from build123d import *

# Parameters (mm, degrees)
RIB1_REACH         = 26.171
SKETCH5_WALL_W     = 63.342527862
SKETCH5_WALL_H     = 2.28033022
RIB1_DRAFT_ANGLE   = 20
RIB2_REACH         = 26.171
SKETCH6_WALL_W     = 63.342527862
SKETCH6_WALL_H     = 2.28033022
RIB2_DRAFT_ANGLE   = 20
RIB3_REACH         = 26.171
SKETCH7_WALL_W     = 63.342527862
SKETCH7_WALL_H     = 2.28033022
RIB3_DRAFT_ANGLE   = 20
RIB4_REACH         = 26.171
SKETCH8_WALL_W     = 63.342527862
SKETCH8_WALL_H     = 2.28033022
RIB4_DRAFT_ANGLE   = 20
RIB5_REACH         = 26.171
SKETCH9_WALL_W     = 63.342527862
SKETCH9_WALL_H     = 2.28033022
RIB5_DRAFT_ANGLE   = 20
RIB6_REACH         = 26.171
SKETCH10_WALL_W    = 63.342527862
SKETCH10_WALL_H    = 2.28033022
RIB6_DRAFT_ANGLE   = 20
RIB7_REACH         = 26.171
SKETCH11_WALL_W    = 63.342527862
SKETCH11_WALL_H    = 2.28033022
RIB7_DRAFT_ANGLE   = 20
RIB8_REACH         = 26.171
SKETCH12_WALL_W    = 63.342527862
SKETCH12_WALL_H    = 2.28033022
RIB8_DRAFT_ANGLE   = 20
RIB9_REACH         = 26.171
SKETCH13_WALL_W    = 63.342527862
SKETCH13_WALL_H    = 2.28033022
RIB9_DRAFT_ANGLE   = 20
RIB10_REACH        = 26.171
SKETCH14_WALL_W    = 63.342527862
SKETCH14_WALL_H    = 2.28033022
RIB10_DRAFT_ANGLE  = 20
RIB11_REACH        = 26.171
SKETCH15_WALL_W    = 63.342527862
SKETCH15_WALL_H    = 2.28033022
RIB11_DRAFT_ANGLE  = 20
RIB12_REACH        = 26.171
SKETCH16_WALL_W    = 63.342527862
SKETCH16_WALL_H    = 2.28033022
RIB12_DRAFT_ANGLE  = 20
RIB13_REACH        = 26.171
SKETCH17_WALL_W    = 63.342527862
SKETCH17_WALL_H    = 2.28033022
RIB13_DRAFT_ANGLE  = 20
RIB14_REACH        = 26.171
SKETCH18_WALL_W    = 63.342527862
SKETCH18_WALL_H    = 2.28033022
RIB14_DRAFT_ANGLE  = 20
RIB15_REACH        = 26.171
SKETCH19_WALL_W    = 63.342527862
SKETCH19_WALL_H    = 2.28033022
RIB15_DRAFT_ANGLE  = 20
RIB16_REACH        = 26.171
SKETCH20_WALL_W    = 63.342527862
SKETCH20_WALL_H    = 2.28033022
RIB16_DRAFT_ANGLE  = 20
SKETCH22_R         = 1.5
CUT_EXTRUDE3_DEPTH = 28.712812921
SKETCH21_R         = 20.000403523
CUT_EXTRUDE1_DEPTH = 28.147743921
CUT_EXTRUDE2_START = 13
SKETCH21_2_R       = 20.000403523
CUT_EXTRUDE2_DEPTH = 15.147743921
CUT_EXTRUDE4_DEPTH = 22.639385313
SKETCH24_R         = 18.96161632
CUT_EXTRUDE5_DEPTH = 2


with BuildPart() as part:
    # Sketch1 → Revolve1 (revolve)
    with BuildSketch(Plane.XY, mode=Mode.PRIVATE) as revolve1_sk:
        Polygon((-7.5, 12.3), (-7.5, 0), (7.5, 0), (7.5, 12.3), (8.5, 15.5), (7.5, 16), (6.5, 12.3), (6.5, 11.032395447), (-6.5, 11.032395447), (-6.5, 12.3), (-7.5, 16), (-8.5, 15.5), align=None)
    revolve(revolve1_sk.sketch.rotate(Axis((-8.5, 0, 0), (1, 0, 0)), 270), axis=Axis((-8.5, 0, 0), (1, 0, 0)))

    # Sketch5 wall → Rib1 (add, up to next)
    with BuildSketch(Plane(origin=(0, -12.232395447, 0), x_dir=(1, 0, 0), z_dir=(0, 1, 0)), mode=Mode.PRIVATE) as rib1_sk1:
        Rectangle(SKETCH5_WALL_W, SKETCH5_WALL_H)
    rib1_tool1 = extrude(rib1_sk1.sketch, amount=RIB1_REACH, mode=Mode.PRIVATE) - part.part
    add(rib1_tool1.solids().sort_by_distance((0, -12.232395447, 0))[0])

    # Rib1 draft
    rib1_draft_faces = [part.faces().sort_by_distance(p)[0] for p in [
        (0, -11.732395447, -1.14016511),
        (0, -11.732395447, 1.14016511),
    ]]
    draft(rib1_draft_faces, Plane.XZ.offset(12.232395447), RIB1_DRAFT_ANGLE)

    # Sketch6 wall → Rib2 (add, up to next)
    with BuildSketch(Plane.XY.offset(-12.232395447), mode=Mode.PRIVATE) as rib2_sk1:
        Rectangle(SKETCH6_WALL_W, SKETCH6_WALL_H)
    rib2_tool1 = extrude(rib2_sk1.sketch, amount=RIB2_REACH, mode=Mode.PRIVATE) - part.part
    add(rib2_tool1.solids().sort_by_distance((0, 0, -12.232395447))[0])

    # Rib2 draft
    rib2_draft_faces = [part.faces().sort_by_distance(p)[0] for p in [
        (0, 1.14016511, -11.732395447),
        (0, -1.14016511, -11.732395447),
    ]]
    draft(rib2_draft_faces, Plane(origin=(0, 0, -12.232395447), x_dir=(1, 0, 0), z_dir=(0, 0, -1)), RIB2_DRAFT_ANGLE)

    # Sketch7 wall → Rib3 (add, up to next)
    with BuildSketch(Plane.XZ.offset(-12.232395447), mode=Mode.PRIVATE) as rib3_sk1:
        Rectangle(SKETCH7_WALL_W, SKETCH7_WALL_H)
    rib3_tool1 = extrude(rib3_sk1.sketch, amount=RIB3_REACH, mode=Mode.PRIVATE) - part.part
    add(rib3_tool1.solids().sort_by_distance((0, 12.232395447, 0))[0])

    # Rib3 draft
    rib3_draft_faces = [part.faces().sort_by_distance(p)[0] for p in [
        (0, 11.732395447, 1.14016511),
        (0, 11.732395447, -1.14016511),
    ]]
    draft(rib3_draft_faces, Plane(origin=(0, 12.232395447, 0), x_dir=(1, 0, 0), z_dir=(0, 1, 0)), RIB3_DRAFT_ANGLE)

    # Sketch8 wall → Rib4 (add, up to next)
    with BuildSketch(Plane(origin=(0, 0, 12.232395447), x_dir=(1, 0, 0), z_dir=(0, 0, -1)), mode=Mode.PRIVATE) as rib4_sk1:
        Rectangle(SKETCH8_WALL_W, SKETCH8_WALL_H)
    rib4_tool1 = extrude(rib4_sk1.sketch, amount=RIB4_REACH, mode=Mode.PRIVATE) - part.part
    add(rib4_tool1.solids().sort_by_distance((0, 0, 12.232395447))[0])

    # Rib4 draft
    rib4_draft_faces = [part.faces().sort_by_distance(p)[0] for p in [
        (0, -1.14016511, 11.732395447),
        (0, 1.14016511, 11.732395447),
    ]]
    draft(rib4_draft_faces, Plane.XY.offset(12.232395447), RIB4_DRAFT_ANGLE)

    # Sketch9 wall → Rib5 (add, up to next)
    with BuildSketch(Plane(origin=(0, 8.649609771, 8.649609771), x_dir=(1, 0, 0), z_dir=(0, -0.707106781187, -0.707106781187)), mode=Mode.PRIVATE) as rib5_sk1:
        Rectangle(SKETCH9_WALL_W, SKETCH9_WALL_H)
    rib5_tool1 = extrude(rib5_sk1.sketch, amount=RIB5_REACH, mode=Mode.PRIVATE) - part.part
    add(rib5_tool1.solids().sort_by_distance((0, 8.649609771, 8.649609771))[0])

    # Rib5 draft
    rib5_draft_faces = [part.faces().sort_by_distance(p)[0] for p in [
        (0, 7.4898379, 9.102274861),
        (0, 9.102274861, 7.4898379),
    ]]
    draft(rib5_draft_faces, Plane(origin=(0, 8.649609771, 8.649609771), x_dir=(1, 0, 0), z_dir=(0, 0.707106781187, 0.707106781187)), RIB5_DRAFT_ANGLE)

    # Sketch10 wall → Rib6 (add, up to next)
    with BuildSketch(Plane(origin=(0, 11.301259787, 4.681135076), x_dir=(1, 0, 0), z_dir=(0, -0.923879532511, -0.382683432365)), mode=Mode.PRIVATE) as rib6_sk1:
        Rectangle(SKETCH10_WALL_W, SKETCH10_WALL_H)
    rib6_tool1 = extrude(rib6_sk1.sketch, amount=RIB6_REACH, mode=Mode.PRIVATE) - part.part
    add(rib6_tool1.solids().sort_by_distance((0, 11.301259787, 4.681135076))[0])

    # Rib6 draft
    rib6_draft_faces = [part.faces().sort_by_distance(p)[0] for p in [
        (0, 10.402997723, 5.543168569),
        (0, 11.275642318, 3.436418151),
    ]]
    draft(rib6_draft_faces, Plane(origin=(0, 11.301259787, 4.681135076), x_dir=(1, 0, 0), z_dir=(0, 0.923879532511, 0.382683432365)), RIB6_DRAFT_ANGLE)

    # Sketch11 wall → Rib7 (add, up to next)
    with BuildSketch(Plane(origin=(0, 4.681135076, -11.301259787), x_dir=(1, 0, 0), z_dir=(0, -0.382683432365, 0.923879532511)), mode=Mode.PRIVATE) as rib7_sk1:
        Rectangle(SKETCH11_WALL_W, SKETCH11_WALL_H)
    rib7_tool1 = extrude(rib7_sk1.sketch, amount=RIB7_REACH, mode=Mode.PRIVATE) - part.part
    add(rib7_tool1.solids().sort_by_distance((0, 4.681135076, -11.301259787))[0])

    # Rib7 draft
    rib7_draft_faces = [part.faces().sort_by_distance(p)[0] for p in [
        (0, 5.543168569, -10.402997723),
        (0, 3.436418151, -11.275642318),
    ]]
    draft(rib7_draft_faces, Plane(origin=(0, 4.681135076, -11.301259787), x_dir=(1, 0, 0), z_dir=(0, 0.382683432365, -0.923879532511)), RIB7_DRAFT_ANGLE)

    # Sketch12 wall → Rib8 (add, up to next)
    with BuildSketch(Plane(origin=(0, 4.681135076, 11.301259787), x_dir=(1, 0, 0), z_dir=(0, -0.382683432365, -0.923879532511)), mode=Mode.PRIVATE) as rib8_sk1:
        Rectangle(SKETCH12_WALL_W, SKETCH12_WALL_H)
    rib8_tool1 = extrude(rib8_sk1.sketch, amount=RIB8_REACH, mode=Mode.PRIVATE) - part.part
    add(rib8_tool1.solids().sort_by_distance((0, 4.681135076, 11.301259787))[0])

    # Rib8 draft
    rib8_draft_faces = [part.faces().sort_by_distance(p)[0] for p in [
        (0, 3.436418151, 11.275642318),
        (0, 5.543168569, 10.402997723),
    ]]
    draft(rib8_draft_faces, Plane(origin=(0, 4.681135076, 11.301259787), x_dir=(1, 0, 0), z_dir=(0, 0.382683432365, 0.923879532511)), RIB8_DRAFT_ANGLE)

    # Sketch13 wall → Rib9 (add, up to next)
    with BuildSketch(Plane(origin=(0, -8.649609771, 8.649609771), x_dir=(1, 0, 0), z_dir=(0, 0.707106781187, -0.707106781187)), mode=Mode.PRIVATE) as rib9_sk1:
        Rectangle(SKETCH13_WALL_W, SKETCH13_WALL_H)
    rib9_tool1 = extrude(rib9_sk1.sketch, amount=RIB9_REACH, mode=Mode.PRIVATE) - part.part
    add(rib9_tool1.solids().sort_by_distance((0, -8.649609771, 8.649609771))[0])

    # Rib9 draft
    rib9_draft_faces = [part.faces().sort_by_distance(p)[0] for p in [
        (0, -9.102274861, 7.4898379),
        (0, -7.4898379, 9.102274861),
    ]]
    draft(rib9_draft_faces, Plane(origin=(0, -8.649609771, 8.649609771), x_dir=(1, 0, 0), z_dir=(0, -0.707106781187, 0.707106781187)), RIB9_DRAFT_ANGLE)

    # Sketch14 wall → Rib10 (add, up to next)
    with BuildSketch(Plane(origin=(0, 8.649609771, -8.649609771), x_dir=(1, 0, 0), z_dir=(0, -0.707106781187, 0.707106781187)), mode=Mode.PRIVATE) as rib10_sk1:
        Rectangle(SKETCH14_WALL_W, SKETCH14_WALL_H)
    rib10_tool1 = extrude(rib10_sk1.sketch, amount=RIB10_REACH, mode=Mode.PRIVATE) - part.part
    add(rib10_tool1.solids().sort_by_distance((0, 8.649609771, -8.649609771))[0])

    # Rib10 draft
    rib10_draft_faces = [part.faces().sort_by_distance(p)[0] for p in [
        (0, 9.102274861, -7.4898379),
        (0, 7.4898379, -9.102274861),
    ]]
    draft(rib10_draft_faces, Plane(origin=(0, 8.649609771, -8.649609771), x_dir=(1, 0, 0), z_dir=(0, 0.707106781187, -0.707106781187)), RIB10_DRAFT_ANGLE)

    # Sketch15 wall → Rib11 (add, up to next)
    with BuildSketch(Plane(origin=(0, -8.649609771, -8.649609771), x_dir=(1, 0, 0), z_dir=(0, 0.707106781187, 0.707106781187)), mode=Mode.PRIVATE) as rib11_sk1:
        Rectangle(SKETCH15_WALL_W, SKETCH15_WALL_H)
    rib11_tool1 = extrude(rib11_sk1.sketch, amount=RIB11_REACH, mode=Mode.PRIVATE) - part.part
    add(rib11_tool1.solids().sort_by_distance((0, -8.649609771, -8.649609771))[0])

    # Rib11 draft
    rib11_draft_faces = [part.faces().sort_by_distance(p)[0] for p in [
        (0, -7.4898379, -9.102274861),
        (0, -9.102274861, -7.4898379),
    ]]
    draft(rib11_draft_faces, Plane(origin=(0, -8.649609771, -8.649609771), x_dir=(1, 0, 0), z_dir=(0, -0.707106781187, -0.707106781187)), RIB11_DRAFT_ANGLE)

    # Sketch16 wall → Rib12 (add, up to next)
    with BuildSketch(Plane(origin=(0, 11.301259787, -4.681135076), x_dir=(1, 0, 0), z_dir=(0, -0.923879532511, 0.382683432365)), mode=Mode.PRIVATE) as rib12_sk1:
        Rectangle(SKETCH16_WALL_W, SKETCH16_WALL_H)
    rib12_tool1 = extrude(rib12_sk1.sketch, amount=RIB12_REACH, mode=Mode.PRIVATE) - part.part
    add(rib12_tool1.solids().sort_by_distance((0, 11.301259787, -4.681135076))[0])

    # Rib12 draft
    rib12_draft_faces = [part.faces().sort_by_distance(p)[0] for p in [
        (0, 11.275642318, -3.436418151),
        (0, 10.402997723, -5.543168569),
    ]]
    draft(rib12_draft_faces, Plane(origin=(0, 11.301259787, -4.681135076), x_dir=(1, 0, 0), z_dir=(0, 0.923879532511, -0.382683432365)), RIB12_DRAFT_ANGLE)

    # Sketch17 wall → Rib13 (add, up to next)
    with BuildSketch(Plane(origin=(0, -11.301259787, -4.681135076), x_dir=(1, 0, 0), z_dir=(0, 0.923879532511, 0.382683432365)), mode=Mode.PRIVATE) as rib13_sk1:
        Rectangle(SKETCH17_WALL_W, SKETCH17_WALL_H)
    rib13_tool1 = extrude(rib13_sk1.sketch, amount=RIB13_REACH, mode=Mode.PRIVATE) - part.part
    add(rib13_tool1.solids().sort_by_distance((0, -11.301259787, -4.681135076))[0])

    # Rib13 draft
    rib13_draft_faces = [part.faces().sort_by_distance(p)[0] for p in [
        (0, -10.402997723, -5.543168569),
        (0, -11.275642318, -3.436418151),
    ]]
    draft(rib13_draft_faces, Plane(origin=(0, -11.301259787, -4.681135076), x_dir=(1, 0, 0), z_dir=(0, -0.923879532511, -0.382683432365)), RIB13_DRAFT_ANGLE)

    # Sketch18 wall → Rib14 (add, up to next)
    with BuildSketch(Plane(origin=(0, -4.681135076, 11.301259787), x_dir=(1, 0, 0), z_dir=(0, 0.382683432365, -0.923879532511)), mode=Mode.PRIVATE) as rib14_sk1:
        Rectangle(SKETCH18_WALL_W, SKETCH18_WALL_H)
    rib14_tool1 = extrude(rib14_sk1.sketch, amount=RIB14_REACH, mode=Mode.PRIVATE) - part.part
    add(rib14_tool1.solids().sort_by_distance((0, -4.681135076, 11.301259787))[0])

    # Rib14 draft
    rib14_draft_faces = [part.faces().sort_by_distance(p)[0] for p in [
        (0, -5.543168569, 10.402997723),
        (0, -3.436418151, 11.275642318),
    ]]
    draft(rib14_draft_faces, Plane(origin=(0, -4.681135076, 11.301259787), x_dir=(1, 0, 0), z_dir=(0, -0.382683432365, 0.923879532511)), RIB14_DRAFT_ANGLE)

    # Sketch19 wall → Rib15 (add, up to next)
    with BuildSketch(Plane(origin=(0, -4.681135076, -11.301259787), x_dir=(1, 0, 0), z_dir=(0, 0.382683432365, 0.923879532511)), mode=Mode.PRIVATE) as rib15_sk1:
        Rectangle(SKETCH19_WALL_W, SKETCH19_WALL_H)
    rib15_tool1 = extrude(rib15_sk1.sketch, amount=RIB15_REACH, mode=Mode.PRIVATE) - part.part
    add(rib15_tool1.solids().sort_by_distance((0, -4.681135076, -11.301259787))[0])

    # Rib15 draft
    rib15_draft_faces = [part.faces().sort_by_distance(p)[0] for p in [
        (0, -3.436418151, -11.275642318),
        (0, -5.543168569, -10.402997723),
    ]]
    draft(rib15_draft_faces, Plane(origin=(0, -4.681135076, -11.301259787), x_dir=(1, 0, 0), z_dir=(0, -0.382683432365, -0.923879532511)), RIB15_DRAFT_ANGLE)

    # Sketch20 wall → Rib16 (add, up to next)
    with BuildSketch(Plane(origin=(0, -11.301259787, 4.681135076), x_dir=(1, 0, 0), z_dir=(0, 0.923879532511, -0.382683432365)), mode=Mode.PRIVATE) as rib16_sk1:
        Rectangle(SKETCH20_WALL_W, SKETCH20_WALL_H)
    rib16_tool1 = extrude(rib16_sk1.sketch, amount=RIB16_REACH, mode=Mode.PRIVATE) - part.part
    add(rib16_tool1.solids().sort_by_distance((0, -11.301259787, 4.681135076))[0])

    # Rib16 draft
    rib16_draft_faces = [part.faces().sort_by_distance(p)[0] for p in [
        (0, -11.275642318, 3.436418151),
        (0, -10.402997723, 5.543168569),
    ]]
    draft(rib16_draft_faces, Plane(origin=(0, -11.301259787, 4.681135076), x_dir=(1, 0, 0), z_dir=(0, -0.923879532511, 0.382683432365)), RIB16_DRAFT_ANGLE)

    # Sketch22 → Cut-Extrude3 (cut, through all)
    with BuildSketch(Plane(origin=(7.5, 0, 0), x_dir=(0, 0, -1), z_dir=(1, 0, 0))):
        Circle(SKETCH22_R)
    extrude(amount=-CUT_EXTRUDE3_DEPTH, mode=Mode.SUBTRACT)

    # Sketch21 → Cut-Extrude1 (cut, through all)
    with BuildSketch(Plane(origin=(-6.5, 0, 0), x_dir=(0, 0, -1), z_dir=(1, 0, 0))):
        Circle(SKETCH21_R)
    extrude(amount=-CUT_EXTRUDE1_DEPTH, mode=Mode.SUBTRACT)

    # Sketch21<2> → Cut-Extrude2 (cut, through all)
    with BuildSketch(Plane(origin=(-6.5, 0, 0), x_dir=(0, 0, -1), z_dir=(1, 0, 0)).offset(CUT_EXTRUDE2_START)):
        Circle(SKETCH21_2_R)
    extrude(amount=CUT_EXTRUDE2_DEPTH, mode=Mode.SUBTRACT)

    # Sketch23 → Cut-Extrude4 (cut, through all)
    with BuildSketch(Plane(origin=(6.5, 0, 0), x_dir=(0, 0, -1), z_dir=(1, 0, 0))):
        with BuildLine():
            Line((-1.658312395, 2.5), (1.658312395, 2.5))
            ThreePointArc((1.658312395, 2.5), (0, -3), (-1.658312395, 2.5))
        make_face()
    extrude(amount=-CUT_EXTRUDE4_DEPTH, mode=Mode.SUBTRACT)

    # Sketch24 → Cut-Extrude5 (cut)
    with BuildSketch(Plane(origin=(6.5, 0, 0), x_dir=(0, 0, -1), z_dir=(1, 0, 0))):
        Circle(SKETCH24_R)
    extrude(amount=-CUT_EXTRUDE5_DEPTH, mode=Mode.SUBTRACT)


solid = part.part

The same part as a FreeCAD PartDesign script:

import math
import FreeCAD as App
import Part
import Sketcher

V = App.Vector
Q = App.Units.Quantity


def faces_at(feature, points):
    """Names of the faces that lie closest to the given points."""
    faces = feature.Shape.Faces
    near = lambda p: min(range(len(faces)), key=lambda i: faces[i].distToShape(Part.Vertex(*p))[0])
    return sorted({f"Face{near(p) + 1}" for p in points})

doc = App.newDocument("Part")
body = doc.addObject("PartDesign::Body", "Body")

# Sketch on XY plane
sketch1 = body.newObject("Sketcher::SketchObject", "Sketch")
sketch1.AttachmentSupport = (doc.getObject("XY_Plane"), [""])
sketch1.MapMode = "FlatFace"
sketch1.addGeometry(Part.LineSegment(V(-7.5, 12.3, 0), V(-7.5, 0, 0)), False)
sketch1.addGeometry(Part.LineSegment(V(-7.5, 0, 0), V(7.5, 0, 0)), False)
sketch1.addGeometry(Part.LineSegment(V(7.5, 0, 0), V(7.5, 12.3, 0)), False)
sketch1.addGeometry(Part.LineSegment(V(7.5, 12.3, 0), V(8.5, 15.5, 0)), False)
sketch1.addGeometry(Part.LineSegment(V(8.5, 15.5, 0), V(7.5, 16, 0)), False)
sketch1.addGeometry(Part.LineSegment(V(7.5, 16, 0), V(6.5, 12.3, 0)), False)
sketch1.addGeometry(Part.LineSegment(V(6.5, 12.3, 0), V(6.5, 11.032395, 0)), False)
sketch1.addGeometry(Part.LineSegment(V(6.5, 11.032395, 0), V(-6.5, 11.032395, 0)), False)
sketch1.addGeometry(Part.LineSegment(V(-6.5, 11.032395, 0), V(-6.5, 12.3, 0)), False)
sketch1.addGeometry(Part.LineSegment(V(-6.5, 12.3, 0), V(-7.5, 16, 0)), False)
sketch1.addGeometry(Part.LineSegment(V(-7.5, 16, 0), V(-8.5, 15.5, 0)), False)
sketch1.addGeometry(Part.LineSegment(V(-8.5, 15.5, 0), V(-7.5, 12.3, 0)), False)
sketch1.addConstraint(Sketcher.Constraint("Coincident", 0, 2, 1, 1))
sketch1.addConstraint(Sketcher.Constraint("Coincident", 1, 2, 2, 1))
sketch1.addConstraint(Sketcher.Constraint("Coincident", 2, 2, 3, 1))
sketch1.addConstraint(Sketcher.Constraint("Coincident", 3, 2, 4, 1))
sketch1.addConstraint(Sketcher.Constraint("Coincident", 4, 2, 5, 1))
sketch1.addConstraint(Sketcher.Constraint("Coincident", 5, 2, 6, 1))
sketch1.addConstraint(Sketcher.Constraint("Coincident", 6, 2, 7, 1))
sketch1.addConstraint(Sketcher.Constraint("Coincident", 7, 2, 8, 1))
sketch1.addConstraint(Sketcher.Constraint("Coincident", 8, 2, 9, 1))
sketch1.addConstraint(Sketcher.Constraint("Coincident", 9, 2, 10, 1))
sketch1.addConstraint(Sketcher.Constraint("Coincident", 10, 2, 11, 1))
sketch1.addConstraint(Sketcher.Constraint("Coincident", 11, 2, 0, 1))
sketch1.addConstraint(Sketcher.Constraint("Vertical", 0))
sketch1.addConstraint(Sketcher.Constraint("Horizontal", 1))
sketch1.addConstraint(Sketcher.Constraint("Vertical", 2))
sketch1.addConstraint(Sketcher.Constraint("Vertical", 6))
sketch1.addConstraint(Sketcher.Constraint("Horizontal", 7))
sketch1.addConstraint(Sketcher.Constraint("Vertical", 8))
sketch1.addConstraint(Sketcher.Constraint("Symmetric", 0, 2, 1, 2, -1, 1))
sketch1.addConstraint(Sketcher.Constraint("Symmetric", 5, 2, 8, 2, -2))
sketch1.addConstraint(Sketcher.Constraint("Symmetric", 4, 2, 9, 2, -2))
sketch1.addConstraint(Sketcher.Constraint("Symmetric", 3, 2, 10, 2, -2))
sketch1.addConstraint(Sketcher.Constraint("Horizontal", 2, 2, 5, 2))
sketch1.addConstraint(Sketcher.Constraint("Horizontal", 8, 2, 11, 2))
sketch1.addConstraint(Sketcher.Constraint("Vertical", 2, 2, 4, 2))
sketch1.addConstraint(Sketcher.Constraint("DistanceX", 1, 1, 1, 2, Q("15 mm")))
sketch1.addConstraint(Sketcher.Constraint("DistanceX", 7, 2, 7, 1, Q("13 mm")))
sketch1.addConstraint(Sketcher.Constraint("DistanceY", 0, 2, 0, 1, Q("12.3 mm")))
sketch1.addConstraint(Sketcher.Constraint("DistanceY", -1, 1, 4, 2, Q("16 mm")))
sketch1.addConstraint(Sketcher.Constraint("DistanceX", 2, 2, 3, 2, Q("1 mm")))
sketch1.addConstraint(Sketcher.Constraint("DistanceY", -1, 1, 3, 2, Q("15.5 mm")))
sketch1.addConstraint(Sketcher.Constraint("DistanceY", 6, 2, 6, 1, Q("1.267605 mm")))
revolution = body.newObject("PartDesign::Revolution", "Revolution")
revolution.Profile = sketch1
revolution.ReferenceAxis = (sketch1, ["H_Axis"])
revolution.Angle = 360

# Sketch on XZ plane
sketch2 = body.newObject("Sketcher::SketchObject", "Sketch001")
sketch2.AttachmentSupport = (doc.getObject("XZ_Plane"), [""])
sketch2.MapMode = "FlatFace"
sketch2.AttachmentOffset = App.Placement(V(0, 0, 12.232395), App.Rotation())
sketch2.addGeometry(Part.LineSegment(V(-31.671264, -1.140165, 0), V(-31.671264, 1.140165, 0)), False)
sketch2.addGeometry(Part.LineSegment(V(-31.671264, 1.140165, 0), V(31.671264, 1.140165, 0)), False)
sketch2.addGeometry(Part.LineSegment(V(31.671264, 1.140165, 0), V(31.671264, -1.140165, 0)), False)
sketch2.addGeometry(Part.LineSegment(V(31.671264, -1.140165, 0), V(-31.671264, -1.140165, 0)), False)
sketch2.addConstraint(Sketcher.Constraint("Coincident", 0, 2, 1, 1))
sketch2.addConstraint(Sketcher.Constraint("Coincident", 1, 2, 2, 1))
sketch2.addConstraint(Sketcher.Constraint("Coincident", 2, 2, 3, 1))
sketch2.addConstraint(Sketcher.Constraint("Coincident", 3, 2, 0, 1))
sketch2.addConstraint(Sketcher.Constraint("Vertical", 0))
sketch2.addConstraint(Sketcher.Constraint("Horizontal", 1))
sketch2.addConstraint(Sketcher.Constraint("Vertical", 2))
sketch2.addConstraint(Sketcher.Constraint("Horizontal", 3))
sketch2.addConstraint(Sketcher.Constraint("Symmetric", 0, 2, 2, 2, -1, 1))
sketch2.addConstraint(Sketcher.Constraint("DistanceY", 0, 1, 0, 2, Q("2.28033 mm")))
sketch2.addConstraint(Sketcher.Constraint("DistanceX", 1, 1, 1, 2, Q("63.342528 mm")))
pad1 = body.newObject("PartDesign::Pad", "Pad")
pad1.Profile = sketch2
pad1.Type = "UpToFirst"
pad1.Reversed = True
doc.recompute()

datumplane = body.newObject("PartDesign::Plane", "DatumPlane")
datumplane.AttachmentSupport = (doc.getObject("XZ_Plane"), [""])
datumplane.MapMode = "FlatFace"
datumplane.AttachmentOffset = App.Placement(V(0, 0, 12.232395), App.Rotation())
draft = body.newObject("PartDesign::Draft", "Draft")
draft.Base = (pad1, faces_at(pad1, [(0, -11.603, -1.14), (0, -11.603, 1.14)]))
draft.NeutralPlane = (datumplane, [""])
draft.Angle = 20
draft.Reversed = False

# Sketch on XY plane
sketch3 = body.newObject("Sketcher::SketchObject", "Sketch002")
sketch3.AttachmentSupport = (doc.getObject("XY_Plane"), [""])
sketch3.MapMode = "FlatFace"
sketch3.AttachmentOffset = App.Placement(V(0, 0, -12.232395), App.Rotation())
sketch3.addGeometry(Part.LineSegment(V(-31.671264, 1.140165, 0), V(-31.671264, -1.140165, 0)), False)
sketch3.addGeometry(Part.LineSegment(V(-31.671264, -1.140165, 0), V(31.671264, -1.140165, 0)), False)
sketch3.addGeometry(Part.LineSegment(V(31.671264, -1.140165, 0), V(31.671264, 1.140165, 0)), False)
sketch3.addGeometry(Part.LineSegment(V(31.671264, 1.140165, 0), V(-31.671264, 1.140165, 0)), False)
sketch3.addConstraint(Sketcher.Constraint("Coincident", 0, 2, 1, 1))
sketch3.addConstraint(Sketcher.Constraint("Coincident", 1, 2, 2, 1))
sketch3.addConstraint(Sketcher.Constraint("Coincident", 2, 2, 3, 1))
sketch3.addConstraint(Sketcher.Constraint("Coincident", 3, 2, 0, 1))
sketch3.addConstraint(Sketcher.Constraint("Vertical", 0))
sketch3.addConstraint(Sketcher.Constraint("Horizontal", 1))
sketch3.addConstraint(Sketcher.Constraint("Vertical", 2))
sketch3.addConstraint(Sketcher.Constraint("Horizontal", 3))
sketch3.addConstraint(Sketcher.Constraint("Symmetric", 0, 2, 2, 2, -1, 1))
sketch3.addConstraint(Sketcher.Constraint("DistanceY", 0, 2, 0, 1, Q("2.28033 mm")))
sketch3.addConstraint(Sketcher.Constraint("DistanceX", 1, 1, 1, 2, Q("63.342528 mm")))
pad2 = body.newObject("PartDesign::Pad", "Pad001")
pad2.Profile = sketch3
pad2.Type = "UpToFirst"
doc.recompute()

datumplane2 = body.newObject("PartDesign::Plane", "DatumPlane001")
datumplane2.AttachmentSupport = (doc.getObject("XY_Plane"), [""])
datumplane2.MapMode = "FlatFace"
datumplane2.AttachmentOffset = App.Placement(V(0, 0, -12.232395), App.Rotation())
draft2 = body.newObject("PartDesign::Draft", "Draft001")
draft2.Base = (pad2, faces_at(pad2, [(0, 1.14, -11.603), (0, -1.14, -11.603)]))
draft2.NeutralPlane = (datumplane2, [""])
draft2.Angle = 20
draft2.Reversed = True

# Sketch on XZ plane
sketch4 = body.newObject("Sketcher::SketchObject", "Sketch003")
sketch4.AttachmentSupport = (doc.getObject("XZ_Plane"), [""])
sketch4.MapMode = "FlatFace"
sketch4.AttachmentOffset = App.Placement(V(0, 0, -12.232395), App.Rotation())
sketch4.addGeometry(Part.LineSegment(V(-31.671264, 1.140165, 0), V(-31.671264, -1.140165, 0)), False)
sketch4.addGeometry(Part.LineSegment(V(-31.671264, -1.140165, 0), V(31.671264, -1.140165, 0)), False)
sketch4.addGeometry(Part.LineSegment(V(31.671264, -1.140165, 0), V(31.671264, 1.140165, 0)), False)
sketch4.addGeometry(Part.LineSegment(V(31.671264, 1.140165, 0), V(-31.671264, 1.140165, 0)), False)
sketch4.addConstraint(Sketcher.Constraint("Coincident", 0, 2, 1, 1))
sketch4.addConstraint(Sketcher.Constraint("Coincident", 1, 2, 2, 1))
sketch4.addConstraint(Sketcher.Constraint("Coincident", 2, 2, 3, 1))
sketch4.addConstraint(Sketcher.Constraint("Coincident", 3, 2, 0, 1))
sketch4.addConstraint(Sketcher.Constraint("Vertical", 0))
sketch4.addConstraint(Sketcher.Constraint("Horizontal", 1))
sketch4.addConstraint(Sketcher.Constraint("Vertical", 2))
sketch4.addConstraint(Sketcher.Constraint("Horizontal", 3))
sketch4.addConstraint(Sketcher.Constraint("Symmetric", 0, 2, 2, 2, -1, 1))
sketch4.addConstraint(Sketcher.Constraint("DistanceY", 0, 2, 0, 1, Q("2.28033 mm")))
sketch4.addConstraint(Sketcher.Constraint("DistanceX", 1, 1, 1, 2, Q("63.342528 mm")))
pad3 = body.newObject("PartDesign::Pad", "Pad002")
pad3.Profile = sketch4
pad3.Type = "UpToFirst"
doc.recompute()

datumplane3 = body.newObject("PartDesign::Plane", "DatumPlane002")
datumplane3.AttachmentSupport = (doc.getObject("XZ_Plane"), [""])
datumplane3.MapMode = "FlatFace"
datumplane3.AttachmentOffset = App.Placement(V(0, 0, -12.232395), App.Rotation())
draft3 = body.newObject("PartDesign::Draft", "Draft002")
draft3.Base = (pad3, faces_at(pad3, [(0, 11.603, 1.14), (0, 11.603, -1.14)]))
draft3.NeutralPlane = (datumplane3, [""])
draft3.Angle = 20
draft3.Reversed = True

# Sketch on XY plane
sketch5 = body.newObject("Sketcher::SketchObject", "Sketch004")
sketch5.AttachmentSupport = (doc.getObject("XY_Plane"), [""])
sketch5.MapMode = "FlatFace"
sketch5.AttachmentOffset = App.Placement(V(0, 0, 12.232395), App.Rotation())
sketch5.addGeometry(Part.LineSegment(V(-31.671264, -1.140165, 0), V(-31.671264, 1.140165, 0)), False)
sketch5.addGeometry(Part.LineSegment(V(-31.671264, 1.140165, 0), V(31.671264, 1.140165, 0)), False)
sketch5.addGeometry(Part.LineSegment(V(31.671264, 1.140165, 0), V(31.671264, -1.140165, 0)), False)
sketch5.addGeometry(Part.LineSegment(V(31.671264, -1.140165, 0), V(-31.671264, -1.140165, 0)), False)
sketch5.addConstraint(Sketcher.Constraint("Coincident", 0, 2, 1, 1))
sketch5.addConstraint(Sketcher.Constraint("Coincident", 1, 2, 2, 1))
sketch5.addConstraint(Sketcher.Constraint("Coincident", 2, 2, 3, 1))
sketch5.addConstraint(Sketcher.Constraint("Coincident", 3, 2, 0, 1))
sketch5.addConstraint(Sketcher.Constraint("Vertical", 0))
sketch5.addConstraint(Sketcher.Constraint("Horizontal", 1))
sketch5.addConstraint(Sketcher.Constraint("Vertical", 2))
sketch5.addConstraint(Sketcher.Constraint("Horizontal", 3))
sketch5.addConstraint(Sketcher.Constraint("Symmetric", 0, 2, 2, 2, -1, 1))
sketch5.addConstraint(Sketcher.Constraint("DistanceY", 0, 1, 0, 2, Q("2.28033 mm")))
sketch5.addConstraint(Sketcher.Constraint("DistanceX", 1, 1, 1, 2, Q("63.342528 mm")))
pad4 = body.newObject("PartDesign::Pad", "Pad003")
pad4.Profile = sketch5
pad4.Type = "UpToFirst"
pad4.Reversed = True
doc.recompute()

datumplane4 = body.newObject("PartDesign::Plane", "DatumPlane003")
datumplane4.AttachmentSupport = (doc.getObject("XY_Plane"), [""])
datumplane4.MapMode = "FlatFace"
datumplane4.AttachmentOffset = App.Placement(V(0, 0, 12.232395), App.Rotation())
draft4 = body.newObject("PartDesign::Draft", "Draft003")
draft4.Base = (pad4, faces_at(pad4, [(0, -1.14, 11.603), (0, 1.14, 11.603)]))
draft4.NeutralPlane = (datumplane4, [""])
draft4.Angle = 20
draft4.Reversed = False

# Sketch on an angled plane
sketch6 = body.newObject("Sketcher::SketchObject", "Sketch005")
sketch6.Placement = App.Placement(V(0, 8.64961, 8.64961), App.Rotation(V(1, 0, 0), V(0, -0.707106781, 0.707106781), V(0, -0.707106781, -0.707106781), "ZXY"))
sketch6.addGeometry(Part.LineSegment(V(-31.671264, 1.140165, 0), V(-31.671264, -1.140165, 0)), False)
sketch6.addGeometry(Part.LineSegment(V(-31.671264, -1.140165, 0), V(31.671264, -1.140165, 0)), False)
sketch6.addGeometry(Part.LineSegment(V(31.671264, -1.140165, 0), V(31.671264, 1.140165, 0)), False)
sketch6.addGeometry(Part.LineSegment(V(31.671264, 1.140165, 0), V(-31.671264, 1.140165, 0)), False)
sketch6.addConstraint(Sketcher.Constraint("Coincident", 0, 2, 1, 1))
sketch6.addConstraint(Sketcher.Constraint("Coincident", 1, 2, 2, 1))
sketch6.addConstraint(Sketcher.Constraint("Coincident", 2, 2, 3, 1))
sketch6.addConstraint(Sketcher.Constraint("Coincident", 3, 2, 0, 1))
sketch6.addConstraint(Sketcher.Constraint("Vertical", 0))
sketch6.addConstraint(Sketcher.Constraint("Horizontal", 1))
sketch6.addConstraint(Sketcher.Constraint("Vertical", 2))
sketch6.addConstraint(Sketcher.Constraint("Horizontal", 3))
sketch6.addConstraint(Sketcher.Constraint("Symmetric", 0, 2, 2, 2, -1, 1))
sketch6.addConstraint(Sketcher.Constraint("DistanceY", 0, 2, 0, 1, Q("2.28033 mm")))
sketch6.addConstraint(Sketcher.Constraint("DistanceX", 1, 1, 1, 2, Q("63.342528 mm")))
pad5 = body.newObject("PartDesign::Pad", "Pad004")
pad5.Profile = sketch6
pad5.Type = "UpToFirst"
doc.recompute()

datumplane5 = body.newObject("PartDesign::Plane", "DatumPlane004")
datumplane5.Placement = App.Placement(V(0, 8.64961, 8.64961), App.Rotation(V(0, 0.707106781, -0.707106781), V(-1, 0, 0), V(0, 0.707106781, 0.707106781), "ZXY"))
draft5 = body.newObject("PartDesign::Draft", "Draft004")
draft5.Base = (pad5, faces_at(pad5, [(0, 7.398, 9.011), (0, 9.011, 7.398)]))
draft5.NeutralPlane = (datumplane5, [""])
draft5.Angle = 20
draft5.Reversed = False

# Sketch on an angled plane
sketch7 = body.newObject("Sketcher::SketchObject", "Sketch006")
sketch7.Placement = App.Placement(V(0, 11.30126, 4.681135), App.Rotation(V(1, 0, 0), V(0, -0.382683432, 0.923879533), V(0, -0.923879533, -0.382683432), "ZXY"))
sketch7.addGeometry(Part.LineSegment(V(-31.671264, 1.140165, 0), V(-31.671264, -1.140165, 0)), False)
sketch7.addGeometry(Part.LineSegment(V(-31.671264, -1.140165, 0), V(31.671264, -1.140165, 0)), False)
sketch7.addGeometry(Part.LineSegment(V(31.671264, -1.140165, 0), V(31.671264, 1.140165, 0)), False)
sketch7.addGeometry(Part.LineSegment(V(31.671264, 1.140165, 0), V(-31.671264, 1.140165, 0)), False)
sketch7.addConstraint(Sketcher.Constraint("Coincident", 0, 2, 1, 1))
sketch7.addConstraint(Sketcher.Constraint("Coincident", 1, 2, 2, 1))
sketch7.addConstraint(Sketcher.Constraint("Coincident", 2, 2, 3, 1))
sketch7.addConstraint(Sketcher.Constraint("Coincident", 3, 2, 0, 1))
sketch7.addConstraint(Sketcher.Constraint("Vertical", 0))
sketch7.addConstraint(Sketcher.Constraint("Horizontal", 1))
sketch7.addConstraint(Sketcher.Constraint("Vertical", 2))
sketch7.addConstraint(Sketcher.Constraint("Horizontal", 3))
sketch7.addConstraint(Sketcher.Constraint("Symmetric", 0, 2, 2, 2, -1, 1))
sketch7.addConstraint(Sketcher.Constraint("DistanceY", 0, 2, 0, 1, Q("2.28033 mm")))
sketch7.addConstraint(Sketcher.Constraint("DistanceX", 1, 1, 1, 2, Q("63.342528 mm")))
pad6 = body.newObject("PartDesign::Pad", "Pad005")
pad6.Profile = sketch7
pad6.Type = "UpToFirst"
doc.recompute()

datumplane6 = body.newObject("PartDesign::Plane", "DatumPlane005")
datumplane6.Placement = App.Placement(V(0, 11.30126, 4.681135), App.Rotation(V(0, 0.382683432, -0.923879533), V(-1, 0, 0), V(0, 0.923879533, 0.382683432), "ZXY"))
draft6 = body.newObject("PartDesign::Draft", "Draft005")
draft6.Base = (pad6, faces_at(pad6, [(0, 10.283, 5.494), (0, 11.156, 3.387)]))
draft6.NeutralPlane = (datumplane6, [""])
draft6.Angle = 20
draft6.Reversed = False

# Sketch on an angled plane
sketch8 = body.newObject("Sketcher::SketchObject", "Sketch007")
sketch8.Placement = App.Placement(V(0, 4.681135, -11.30126), App.Rotation(V(1, 0, 0), V(0, 0.923879533, 0.382683432), V(0, -0.382683432, 0.923879533), "ZXY"))
sketch8.addGeometry(Part.LineSegment(V(-31.671264, 1.140165, 0), V(-31.671264, -1.140165, 0)), False)
sketch8.addGeometry(Part.LineSegment(V(-31.671264, -1.140165, 0), V(31.671264, -1.140165, 0)), False)
sketch8.addGeometry(Part.LineSegment(V(31.671264, -1.140165, 0), V(31.671264, 1.140165, 0)), False)
sketch8.addGeometry(Part.LineSegment(V(31.671264, 1.140165, 0), V(-31.671264, 1.140165, 0)), False)
sketch8.addConstraint(Sketcher.Constraint("Coincident", 0, 2, 1, 1))
sketch8.addConstraint(Sketcher.Constraint("Coincident", 1, 2, 2, 1))
sketch8.addConstraint(Sketcher.Constraint("Coincident", 2, 2, 3, 1))
sketch8.addConstraint(Sketcher.Constraint("Coincident", 3, 2, 0, 1))
sketch8.addConstraint(Sketcher.Constraint("Vertical", 0))
sketch8.addConstraint(Sketcher.Constraint("Horizontal", 1))
sketch8.addConstraint(Sketcher.Constraint("Vertical", 2))
sketch8.addConstraint(Sketcher.Constraint("Horizontal", 3))
sketch8.addConstraint(Sketcher.Constraint("Symmetric", 0, 2, 2, 2, -1, 1))
sketch8.addConstraint(Sketcher.Constraint("DistanceY", 0, 2, 0, 1, Q("2.28033 mm")))
sketch8.addConstraint(Sketcher.Constraint("DistanceX", 1, 1, 1, 2, Q("63.342528 mm")))
pad7 = body.newObject("PartDesign::Pad", "Pad006")
pad7.Profile = sketch8
pad7.Type = "UpToFirst"
doc.recompute()

datumplane7 = body.newObject("PartDesign::Plane", "DatumPlane006")
datumplane7.Placement = App.Placement(V(0, 4.681135, -11.30126), App.Rotation(V(0, -0.923879533, -0.382683432), V(-1, 0, 0), V(0, 0.382683432, -0.923879533), "ZXY"))
draft7 = body.newObject("PartDesign::Draft", "Draft006")
draft7.Base = (pad7, faces_at(pad7, [(0, 5.494, -10.283), (0, 3.387, -11.156)]))
draft7.NeutralPlane = (datumplane7, [""])
draft7.Angle = 20
draft7.Reversed = False

# Sketch on an angled plane
sketch9 = body.newObject("Sketcher::SketchObject", "Sketch008")
sketch9.Placement = App.Placement(V(0, 4.681135, 11.30126), App.Rotation(V(1, 0, 0), V(0, -0.923879533, 0.382683432), V(0, -0.382683432, -0.923879533), "ZXY"))
sketch9.addGeometry(Part.LineSegment(V(-31.671264, 1.140165, 0), V(-31.671264, -1.140165, 0)), False)
sketch9.addGeometry(Part.LineSegment(V(-31.671264, -1.140165, 0), V(31.671264, -1.140165, 0)), False)
sketch9.addGeometry(Part.LineSegment(V(31.671264, -1.140165, 0), V(31.671264, 1.140165, 0)), False)
sketch9.addGeometry(Part.LineSegment(V(31.671264, 1.140165, 0), V(-31.671264, 1.140165, 0)), False)
sketch9.addConstraint(Sketcher.Constraint("Coincident", 0, 2, 1, 1))
sketch9.addConstraint(Sketcher.Constraint("Coincident", 1, 2, 2, 1))
sketch9.addConstraint(Sketcher.Constraint("Coincident", 2, 2, 3, 1))
sketch9.addConstraint(Sketcher.Constraint("Coincident", 3, 2, 0, 1))
sketch9.addConstraint(Sketcher.Constraint("Vertical", 0))
sketch9.addConstraint(Sketcher.Constraint("Horizontal", 1))
sketch9.addConstraint(Sketcher.Constraint("Vertical", 2))
sketch9.addConstraint(Sketcher.Constraint("Horizontal", 3))
sketch9.addConstraint(Sketcher.Constraint("Symmetric", 0, 2, 2, 2, -1, 1))
sketch9.addConstraint(Sketcher.Constraint("DistanceY", 0, 2, 0, 1, Q("2.28033 mm")))
sketch9.addConstraint(Sketcher.Constraint("DistanceX", 1, 1, 1, 2, Q("63.342528 mm")))
pad8 = body.newObject("PartDesign::Pad", "Pad007")
pad8.Profile = sketch9
pad8.Type = "UpToFirst"
doc.recompute()

datumplane8 = body.newObject("PartDesign::Plane", "DatumPlane007")
datumplane8.Placement = App.Placement(V(0, 4.681135, 11.30126), App.Rotation(V(0, 0.923879533, -0.382683432), V(-1, 0, 0), V(0, 0.382683432, 0.923879533), "ZXY"))
draft8 = body.newObject("PartDesign::Draft", "Draft007")
draft8.Base = (pad8, faces_at(pad8, [(0, 3.387, 11.156), (0, 5.494, 10.283)]))
draft8.NeutralPlane = (datumplane8, [""])
draft8.Angle = 20
draft8.Reversed = False

# Sketch on an angled plane
sketch10 = body.newObject("Sketcher::SketchObject", "Sketch009")
sketch10.Placement = App.Placement(V(0, -8.64961, 8.64961), App.Rotation(V(1, 0, 0), V(0, -0.707106781, -0.707106781), V(0, 0.707106781, -0.707106781), "ZXY"))
sketch10.addGeometry(Part.LineSegment(V(-31.671264, 1.140165, 0), V(-31.671264, -1.140165, 0)), False)
sketch10.addGeometry(Part.LineSegment(V(-31.671264, -1.140165, 0), V(31.671264, -1.140165, 0)), False)
sketch10.addGeometry(Part.LineSegment(V(31.671264, -1.140165, 0), V(31.671264, 1.140165, 0)), False)
sketch10.addGeometry(Part.LineSegment(V(31.671264, 1.140165, 0), V(-31.671264, 1.140165, 0)), False)
sketch10.addConstraint(Sketcher.Constraint("Coincident", 0, 2, 1, 1))
sketch10.addConstraint(Sketcher.Constraint("Coincident", 1, 2, 2, 1))
sketch10.addConstraint(Sketcher.Constraint("Coincident", 2, 2, 3, 1))
sketch10.addConstraint(Sketcher.Constraint("Coincident", 3, 2, 0, 1))
sketch10.addConstraint(Sketcher.Constraint("Vertical", 0))
sketch10.addConstraint(Sketcher.Constraint("Horizontal", 1))
sketch10.addConstraint(Sketcher.Constraint("Vertical", 2))
sketch10.addConstraint(Sketcher.Constraint("Horizontal", 3))
sketch10.addConstraint(Sketcher.Constraint("Symmetric", 0, 2, 2, 2, -1, 1))
sketch10.addConstraint(Sketcher.Constraint("DistanceY", 0, 2, 0, 1, Q("2.28033 mm")))
sketch10.addConstraint(Sketcher.Constraint("DistanceX", 1, 1, 1, 2, Q("63.342528 mm")))
pad9 = body.newObject("PartDesign::Pad", "Pad008")
pad9.Profile = sketch10
pad9.Type = "UpToFirst"
doc.recompute()

datumplane9 = body.newObject("PartDesign::Plane", "DatumPlane008")
datumplane9.Placement = App.Placement(V(0, -8.64961, 8.64961), App.Rotation(V(0, 0.707106781, 0.707106781), V(-1, 0, 0), V(0, -0.707106781, 0.707106781), "ZXY"))
draft9 = body.newObject("PartDesign::Draft", "Draft008")
draft9.Base = (pad9, faces_at(pad9, [(0, -9.011, 7.398), (0, -7.398, 9.011)]))
draft9.NeutralPlane = (datumplane9, [""])
draft9.Angle = 20
draft9.Reversed = False

# Sketch on an angled plane
sketch11 = body.newObject("Sketcher::SketchObject", "Sketch010")
sketch11.Placement = App.Placement(V(0, 8.64961, -8.64961), App.Rotation(V(1, 0, 0), V(0, 0.707106781, 0.707106781), V(0, -0.707106781, 0.707106781), "ZXY"))
sketch11.addGeometry(Part.LineSegment(V(-31.671264, 1.140165, 0), V(-31.671264, -1.140165, 0)), False)
sketch11.addGeometry(Part.LineSegment(V(-31.671264, -1.140165, 0), V(31.671264, -1.140165, 0)), False)
sketch11.addGeometry(Part.LineSegment(V(31.671264, -1.140165, 0), V(31.671264, 1.140165, 0)), False)
sketch11.addGeometry(Part.LineSegment(V(31.671264, 1.140165, 0), V(-31.671264, 1.140165, 0)), False)
sketch11.addConstraint(Sketcher.Constraint("Coincident", 0, 2, 1, 1))
sketch11.addConstraint(Sketcher.Constraint("Coincident", 1, 2, 2, 1))
sketch11.addConstraint(Sketcher.Constraint("Coincident", 2, 2, 3, 1))
sketch11.addConstraint(Sketcher.Constraint("Coincident", 3, 2, 0, 1))
sketch11.addConstraint(Sketcher.Constraint("Vertical", 0))
sketch11.addConstraint(Sketcher.Constraint("Horizontal", 1))
sketch11.addConstraint(Sketcher.Constraint("Vertical", 2))
sketch11.addConstraint(Sketcher.Constraint("Horizontal", 3))
sketch11.addConstraint(Sketcher.Constraint("Symmetric", 0, 2, 2, 2, -1, 1))
sketch11.addConstraint(Sketcher.Constraint("DistanceY", 0, 2, 0, 1, Q("2.28033 mm")))
sketch11.addConstraint(Sketcher.Constraint("DistanceX", 1, 1, 1, 2, Q("63.342528 mm")))
pad10 = body.newObject("PartDesign::Pad", "Pad009")
pad10.Profile = sketch11
pad10.Type = "UpToFirst"
doc.recompute()

datumplane10 = body.newObject("PartDesign::Plane", "DatumPlane009")
datumplane10.Placement = App.Placement(V(0, 8.64961, -8.64961), App.Rotation(V(0, -0.707106781, -0.707106781), V(-1, 0, 0), V(0, 0.707106781, -0.707106781), "ZXY"))
draft10 = body.newObject("PartDesign::Draft", "Draft009")
draft10.Base = (pad10, faces_at(pad10, [(0, 9.011, -7.398), (0, 7.398, -9.011)]))
draft10.NeutralPlane = (datumplane10, [""])
draft10.Angle = 20
draft10.Reversed = False

# Sketch on an angled plane
sketch12 = body.newObject("Sketcher::SketchObject", "Sketch011")
sketch12.Placement = App.Placement(V(0, -8.64961, -8.64961), App.Rotation(V(1, 0, 0), V(0, 0.707106781, -0.707106781), V(0, 0.707106781, 0.707106781), "ZXY"))
sketch12.addGeometry(Part.LineSegment(V(-31.671264, 1.140165, 0), V(-31.671264, -1.140165, 0)), False)
sketch12.addGeometry(Part.LineSegment(V(-31.671264, -1.140165, 0), V(31.671264, -1.140165, 0)), False)
sketch12.addGeometry(Part.LineSegment(V(31.671264, -1.140165, 0), V(31.671264, 1.140165, 0)), False)
sketch12.addGeometry(Part.LineSegment(V(31.671264, 1.140165, 0), V(-31.671264, 1.140165, 0)), False)
sketch12.addConstraint(Sketcher.Constraint("Coincident", 0, 2, 1, 1))
sketch12.addConstraint(Sketcher.Constraint("Coincident", 1, 2, 2, 1))
sketch12.addConstraint(Sketcher.Constraint("Coincident", 2, 2, 3, 1))
sketch12.addConstraint(Sketcher.Constraint("Coincident", 3, 2, 0, 1))
sketch12.addConstraint(Sketcher.Constraint("Vertical", 0))
sketch12.addConstraint(Sketcher.Constraint("Horizontal", 1))
sketch12.addConstraint(Sketcher.Constraint("Vertical", 2))
sketch12.addConstraint(Sketcher.Constraint("Horizontal", 3))
sketch12.addConstraint(Sketcher.Constraint("Symmetric", 0, 2, 2, 2, -1, 1))
sketch12.addConstraint(Sketcher.Constraint("DistanceY", 0, 2, 0, 1, Q("2.28033 mm")))
sketch12.addConstraint(Sketcher.Constraint("DistanceX", 1, 1, 1, 2, Q("63.342528 mm")))
pad11 = body.newObject("PartDesign::Pad", "Pad010")
pad11.Profile = sketch12
pad11.Type = "UpToFirst"
doc.recompute()

datumplane11 = body.newObject("PartDesign::Plane", "DatumPlane010")
datumplane11.Placement = App.Placement(V(0, -8.64961, -8.64961), App.Rotation(V(0, -0.707106781, 0.707106781), V(-1, 0, 0), V(0, -0.707106781, -0.707106781), "ZXY"))
draft11 = body.newObject("PartDesign::Draft", "Draft010")
draft11.Base = (pad11, faces_at(pad11, [(0, -7.398, -9.011), (0, -9.011, -7.398)]))
draft11.NeutralPlane = (datumplane11, [""])
draft11.Angle = 20
draft11.Reversed = False

# Sketch on an angled plane
sketch13 = body.newObject("Sketcher::SketchObject", "Sketch012")
sketch13.Placement = App.Placement(V(0, 11.30126, -4.681135), App.Rotation(V(1, 0, 0), V(0, 0.382683432, 0.923879533), V(0, -0.923879533, 0.382683432), "ZXY"))
sketch13.addGeometry(Part.LineSegment(V(-31.671264, 1.140165, 0), V(-31.671264, -1.140165, 0)), False)
sketch13.addGeometry(Part.LineSegment(V(-31.671264, -1.140165, 0), V(31.671264, -1.140165, 0)), False)
sketch13.addGeometry(Part.LineSegment(V(31.671264, -1.140165, 0), V(31.671264, 1.140165, 0)), False)
sketch13.addGeometry(Part.LineSegment(V(31.671264, 1.140165, 0), V(-31.671264, 1.140165, 0)), False)
sketch13.addConstraint(Sketcher.Constraint("Coincident", 0, 2, 1, 1))
sketch13.addConstraint(Sketcher.Constraint("Coincident", 1, 2, 2, 1))
sketch13.addConstraint(Sketcher.Constraint("Coincident", 2, 2, 3, 1))
sketch13.addConstraint(Sketcher.Constraint("Coincident", 3, 2, 0, 1))
sketch13.addConstraint(Sketcher.Constraint("Vertical", 0))
sketch13.addConstraint(Sketcher.Constraint("Horizontal", 1))
sketch13.addConstraint(Sketcher.Constraint("Vertical", 2))
sketch13.addConstraint(Sketcher.Constraint("Horizontal", 3))
sketch13.addConstraint(Sketcher.Constraint("Symmetric", 0, 2, 2, 2, -1, 1))
sketch13.addConstraint(Sketcher.Constraint("DistanceY", 0, 2, 0, 1, Q("2.28033 mm")))
sketch13.addConstraint(Sketcher.Constraint("DistanceX", 1, 1, 1, 2, Q("63.342528 mm")))
pad12 = body.newObject("PartDesign::Pad", "Pad011")
pad12.Profile = sketch13
pad12.Type = "UpToFirst"
doc.recompute()

datumplane12 = body.newObject("PartDesign::Plane", "DatumPlane011")
datumplane12.Placement = App.Placement(V(0, 11.30126, -4.681135), App.Rotation(V(0, -0.382683432, -0.923879533), V(-1, 0, 0), V(0, 0.923879533, -0.382683432), "ZXY"))
draft12 = body.newObject("PartDesign::Draft", "Draft011")
draft12.Base = (pad12, faces_at(pad12, [(0, 11.156, -3.387), (0, 10.283, -5.494)]))
draft12.NeutralPlane = (datumplane12, [""])
draft12.Angle = 20
draft12.Reversed = False

# Sketch on an angled plane
sketch14 = body.newObject("Sketcher::SketchObject", "Sketch013")
sketch14.Placement = App.Placement(V(0, -11.30126, -4.681135), App.Rotation(V(1, 0, 0), V(0, 0.382683432, -0.923879533), V(0, 0.923879533, 0.382683432), "ZXY"))
sketch14.addGeometry(Part.LineSegment(V(-31.671264, 1.140165, 0), V(-31.671264, -1.140165, 0)), False)
sketch14.addGeometry(Part.LineSegment(V(-31.671264, -1.140165, 0), V(31.671264, -1.140165, 0)), False)
sketch14.addGeometry(Part.LineSegment(V(31.671264, -1.140165, 0), V(31.671264, 1.140165, 0)), False)
sketch14.addGeometry(Part.LineSegment(V(31.671264, 1.140165, 0), V(-31.671264, 1.140165, 0)), False)
sketch14.addConstraint(Sketcher.Constraint("Coincident", 0, 2, 1, 1))
sketch14.addConstraint(Sketcher.Constraint("Coincident", 1, 2, 2, 1))
sketch14.addConstraint(Sketcher.Constraint("Coincident", 2, 2, 3, 1))
sketch14.addConstraint(Sketcher.Constraint("Coincident", 3, 2, 0, 1))
sketch14.addConstraint(Sketcher.Constraint("Vertical", 0))
sketch14.addConstraint(Sketcher.Constraint("Horizontal", 1))
sketch14.addConstraint(Sketcher.Constraint("Vertical", 2))
sketch14.addConstraint(Sketcher.Constraint("Horizontal", 3))
sketch14.addConstraint(Sketcher.Constraint("Symmetric", 0, 2, 2, 2, -1, 1))
sketch14.addConstraint(Sketcher.Constraint("DistanceY", 0, 2, 0, 1, Q("2.28033 mm")))
sketch14.addConstraint(Sketcher.Constraint("DistanceX", 1, 1, 1, 2, Q("63.342528 mm")))
pad13 = body.newObject("PartDesign::Pad", "Pad012")
pad13.Profile = sketch14
pad13.Type = "UpToFirst"
doc.recompute()

datumplane13 = body.newObject("PartDesign::Plane", "DatumPlane012")
datumplane13.Placement = App.Placement(V(0, -11.30126, -4.681135), App.Rotation(V(0, -0.382683432, 0.923879533), V(-1, 0, 0), V(0, -0.923879533, -0.382683432), "ZXY"))
draft13 = body.newObject("PartDesign::Draft", "Draft012")
draft13.Base = (pad13, faces_at(pad13, [(0, -10.283, -5.494), (0, -11.156, -3.387)]))
draft13.NeutralPlane = (datumplane13, [""])
draft13.Angle = 20
draft13.Reversed = False

# Sketch on an angled plane
sketch15 = body.newObject("Sketcher::SketchObject", "Sketch014")
sketch15.Placement = App.Placement(V(0, -4.681135, 11.30126), App.Rotation(V(1, 0, 0), V(0, -0.923879533, -0.382683432), V(0, 0.382683432, -0.923879533), "ZXY"))
sketch15.addGeometry(Part.LineSegment(V(-31.671264, 1.140165, 0), V(-31.671264, -1.140165, 0)), False)
sketch15.addGeometry(Part.LineSegment(V(-31.671264, -1.140165, 0), V(31.671264, -1.140165, 0)), False)
sketch15.addGeometry(Part.LineSegment(V(31.671264, -1.140165, 0), V(31.671264, 1.140165, 0)), False)
sketch15.addGeometry(Part.LineSegment(V(31.671264, 1.140165, 0), V(-31.671264, 1.140165, 0)), False)
sketch15.addConstraint(Sketcher.Constraint("Coincident", 0, 2, 1, 1))
sketch15.addConstraint(Sketcher.Constraint("Coincident", 1, 2, 2, 1))
sketch15.addConstraint(Sketcher.Constraint("Coincident", 2, 2, 3, 1))
sketch15.addConstraint(Sketcher.Constraint("Coincident", 3, 2, 0, 1))
sketch15.addConstraint(Sketcher.Constraint("Vertical", 0))
sketch15.addConstraint(Sketcher.Constraint("Horizontal", 1))
sketch15.addConstraint(Sketcher.Constraint("Vertical", 2))
sketch15.addConstraint(Sketcher.Constraint("Horizontal", 3))
sketch15.addConstraint(Sketcher.Constraint("Symmetric", 0, 2, 2, 2, -1, 1))
sketch15.addConstraint(Sketcher.Constraint("DistanceY", 0, 2, 0, 1, Q("2.28033 mm")))
sketch15.addConstraint(Sketcher.Constraint("DistanceX", 1, 1, 1, 2, Q("63.342528 mm")))
pad14 = body.newObject("PartDesign::Pad", "Pad013")
pad14.Profile = sketch15
pad14.Type = "UpToFirst"
doc.recompute()

datumplane14 = body.newObject("PartDesign::Plane", "DatumPlane013")
datumplane14.Placement = App.Placement(V(0, -4.681135, 11.30126), App.Rotation(V(0, 0.923879533, 0.382683432), V(-1, 0, 0), V(0, -0.382683432, 0.923879533), "ZXY"))
draft14 = body.newObject("PartDesign::Draft", "Draft013")
draft14.Base = (pad14, faces_at(pad14, [(0, -5.494, 10.283), (0, -3.387, 11.156)]))
draft14.NeutralPlane = (datumplane14, [""])
draft14.Angle = 20
draft14.Reversed = False

# Sketch on an angled plane
sketch16 = body.newObject("Sketcher::SketchObject", "Sketch015")
sketch16.Placement = App.Placement(V(0, -4.681135, -11.30126), App.Rotation(V(1, 0, 0), V(0, 0.923879533, -0.382683432), V(0, 0.382683432, 0.923879533), "ZXY"))
sketch16.addGeometry(Part.LineSegment(V(-31.671264, 1.140165, 0), V(-31.671264, -1.140165, 0)), False)
sketch16.addGeometry(Part.LineSegment(V(-31.671264, -1.140165, 0), V(31.671264, -1.140165, 0)), False)
sketch16.addGeometry(Part.LineSegment(V(31.671264, -1.140165, 0), V(31.671264, 1.140165, 0)), False)
sketch16.addGeometry(Part.LineSegment(V(31.671264, 1.140165, 0), V(-31.671264, 1.140165, 0)), False)
sketch16.addConstraint(Sketcher.Constraint("Coincident", 0, 2, 1, 1))
sketch16.addConstraint(Sketcher.Constraint("Coincident", 1, 2, 2, 1))
sketch16.addConstraint(Sketcher.Constraint("Coincident", 2, 2, 3, 1))
sketch16.addConstraint(Sketcher.Constraint("Coincident", 3, 2, 0, 1))
sketch16.addConstraint(Sketcher.Constraint("Vertical", 0))
sketch16.addConstraint(Sketcher.Constraint("Horizontal", 1))
sketch16.addConstraint(Sketcher.Constraint("Vertical", 2))
sketch16.addConstraint(Sketcher.Constraint("Horizontal", 3))
sketch16.addConstraint(Sketcher.Constraint("Symmetric", 0, 2, 2, 2, -1, 1))
sketch16.addConstraint(Sketcher.Constraint("DistanceY", 0, 2, 0, 1, Q("2.28033 mm")))
sketch16.addConstraint(Sketcher.Constraint("DistanceX", 1, 1, 1, 2, Q("63.342528 mm")))
pad15 = body.newObject("PartDesign::Pad", "Pad014")
pad15.Profile = sketch16
pad15.Type = "UpToFirst"
doc.recompute()

datumplane15 = body.newObject("PartDesign::Plane", "DatumPlane014")
datumplane15.Placement = App.Placement(V(0, -4.681135, -11.30126), App.Rotation(V(0, -0.923879533, 0.382683432), V(-1, 0, 0), V(0, -0.382683432, -0.923879533), "ZXY"))
draft15 = body.newObject("PartDesign::Draft", "Draft014")
draft15.Base = (pad15, faces_at(pad15, [(0, -3.387, -11.156), (0, -5.494, -10.283)]))
draft15.NeutralPlane = (datumplane15, [""])
draft15.Angle = 20
draft15.Reversed = False

# Sketch on an angled plane
sketch17 = body.newObject("Sketcher::SketchObject", "Sketch016")
sketch17.Placement = App.Placement(V(0, -11.30126, 4.681135), App.Rotation(V(1, 0, 0), V(0, -0.382683432, -0.923879533), V(0, 0.923879533, -0.382683432), "ZXY"))
sketch17.addGeometry(Part.LineSegment(V(-31.671264, 1.140165, 0), V(-31.671264, -1.140165, 0)), False)
sketch17.addGeometry(Part.LineSegment(V(-31.671264, -1.140165, 0), V(31.671264, -1.140165, 0)), False)
sketch17.addGeometry(Part.LineSegment(V(31.671264, -1.140165, 0), V(31.671264, 1.140165, 0)), False)
sketch17.addGeometry(Part.LineSegment(V(31.671264, 1.140165, 0), V(-31.671264, 1.140165, 0)), False)
sketch17.addConstraint(Sketcher.Constraint("Coincident", 0, 2, 1, 1))
sketch17.addConstraint(Sketcher.Constraint("Coincident", 1, 2, 2, 1))
sketch17.addConstraint(Sketcher.Constraint("Coincident", 2, 2, 3, 1))
sketch17.addConstraint(Sketcher.Constraint("Coincident", 3, 2, 0, 1))
sketch17.addConstraint(Sketcher.Constraint("Vertical", 0))
sketch17.addConstraint(Sketcher.Constraint("Horizontal", 1))
sketch17.addConstraint(Sketcher.Constraint("Vertical", 2))
sketch17.addConstraint(Sketcher.Constraint("Horizontal", 3))
sketch17.addConstraint(Sketcher.Constraint("Symmetric", 0, 2, 2, 2, -1, 1))
sketch17.addConstraint(Sketcher.Constraint("DistanceY", 0, 2, 0, 1, Q("2.28033 mm")))
sketch17.addConstraint(Sketcher.Constraint("DistanceX", 1, 1, 1, 2, Q("63.342528 mm")))
pad16 = body.newObject("PartDesign::Pad", "Pad015")
pad16.Profile = sketch17
pad16.Type = "UpToFirst"
doc.recompute()

datumplane16 = body.newObject("PartDesign::Plane", "DatumPlane015")
datumplane16.Placement = App.Placement(V(0, -11.30126, 4.681135), App.Rotation(V(0, 0.382683432, 0.923879533), V(-1, 0, 0), V(0, -0.923879533, 0.382683432), "ZXY"))
draft16 = body.newObject("PartDesign::Draft", "Draft015")
draft16.Base = (pad16, faces_at(pad16, [(0, -11.156, 3.387), (0, -10.283, 5.494)]))
draft16.NeutralPlane = (datumplane16, [""])
draft16.Angle = 20
draft16.Reversed = False

# Sketch on YZ plane
sketch18 = body.newObject("Sketcher::SketchObject", "Sketch017")
sketch18.AttachmentSupport = (doc.getObject("YZ_Plane"), [""])
sketch18.MapMode = "FlatFace"
sketch18.AttachmentOffset = App.Placement(V(0, 0, 7.5), App.Rotation())
sketch18.addGeometry(Part.Circle(V(0, 0, 0), V(0, 0, 1), 1.5), False)
sketch18.addConstraint(Sketcher.Constraint("Coincident", 0, 3, -1, 1))
sketch18.addConstraint(Sketcher.Constraint("Diameter", 0, Q("3 mm")))
pocket1 = body.newObject("PartDesign::Pocket", "Pocket")
pocket1.Profile = sketch18
pocket1.Type = "ThroughAll"

# Sketch on YZ plane
sketch19 = body.newObject("Sketcher::SketchObject", "Sketch018")
sketch19.AttachmentSupport = (doc.getObject("YZ_Plane"), [""])
sketch19.MapMode = "FlatFace"
sketch19.AttachmentOffset = App.Placement(V(0, 0, -6.5), App.Rotation())
sketch19.addGeometry(Part.Circle(V(0, 0, 0), V(0, 0, 1), 20.000404), False)
sketch19.addConstraint(Sketcher.Constraint("Coincident", 0, 3, -1, 1))
sketch19.addConstraint(Sketcher.Constraint("Diameter", 0, Q("40.000807 mm")))
pocket2 = body.newObject("PartDesign::Pocket", "Pocket001")
pocket2.Profile = sketch19
pocket2.Type = "ThroughAll"

# Sketch on YZ plane
sketch20 = body.newObject("Sketcher::SketchObject", "Sketch019")
sketch20.AttachmentSupport = (doc.getObject("YZ_Plane"), [""])
sketch20.MapMode = "FlatFace"
sketch20.AttachmentOffset = App.Placement(V(0, 0, 6.5), App.Rotation())
sketch20.addGeometry(Part.Circle(V(0, 0, 0), V(0, 0, 1), 20.000404), False)
sketch20.addConstraint(Sketcher.Constraint("Coincident", 0, 3, -1, 1))
sketch20.addConstraint(Sketcher.Constraint("Diameter", 0, Q("40.000807 mm")))
pocket3 = body.newObject("PartDesign::Pocket", "Pocket002")
pocket3.Profile = sketch20
pocket3.Type = "ThroughAll"
pocket3.Reversed = True

# Sketch on YZ plane
sketch21 = body.newObject("Sketcher::SketchObject", "Sketch020")
sketch21.AttachmentSupport = (doc.getObject("YZ_Plane"), [""])
sketch21.MapMode = "FlatFace"
sketch21.AttachmentOffset = App.Placement(V(0, 0, 6.5), App.Rotation())
sketch21.addGeometry(Part.LineSegment(V(2.5, -1.658312, 0), V(2.5, 1.658312, 0)), False)
sketch21.addGeometry(Part.ArcOfCircle(Part.Circle(V(0, 0, 0), V(0, 0, 1), 3), math.radians(33.55731), math.radians(326.44269)), False)
sketch21.addConstraint(Sketcher.Constraint("Coincident", 0, 1, 1, 2))
sketch21.addConstraint(Sketcher.Constraint("Coincident", 1, 1, 0, 2))
sketch21.addConstraint(Sketcher.Constraint("Vertical", 0))
sketch21.addConstraint(Sketcher.Constraint("Coincident", 1, 3, -1, 1))
sketch21.addConstraint(Sketcher.Constraint("Radius", 1, Q("3 mm")))
sketch21.addConstraint(Sketcher.Constraint("DistanceX", -1, 1, 0, 1, Q("2.5 mm")))
pocket4 = body.newObject("PartDesign::Pocket", "Pocket003")
pocket4.Profile = sketch21
pocket4.Type = "ThroughAll"

# Sketch on YZ plane
sketch22 = body.newObject("Sketcher::SketchObject", "Sketch021")
sketch22.AttachmentSupport = (doc.getObject("YZ_Plane"), [""])
sketch22.MapMode = "FlatFace"
sketch22.AttachmentOffset = App.Placement(V(0, 0, 6.5), App.Rotation())
sketch22.addGeometry(Part.Circle(V(0, 0, 0), V(0, 0, 1), 18.961616), False)
sketch22.addConstraint(Sketcher.Constraint("Coincident", 0, 3, -1, 1))
sketch22.addConstraint(Sketcher.Constraint("Diameter", 0, Q("37.923233 mm")))
pocket5 = body.newObject("PartDesign::Pocket", "Pocket004")
pocket5.Profile = sketch22
pocket5.Length = 2

doc.recompute()
